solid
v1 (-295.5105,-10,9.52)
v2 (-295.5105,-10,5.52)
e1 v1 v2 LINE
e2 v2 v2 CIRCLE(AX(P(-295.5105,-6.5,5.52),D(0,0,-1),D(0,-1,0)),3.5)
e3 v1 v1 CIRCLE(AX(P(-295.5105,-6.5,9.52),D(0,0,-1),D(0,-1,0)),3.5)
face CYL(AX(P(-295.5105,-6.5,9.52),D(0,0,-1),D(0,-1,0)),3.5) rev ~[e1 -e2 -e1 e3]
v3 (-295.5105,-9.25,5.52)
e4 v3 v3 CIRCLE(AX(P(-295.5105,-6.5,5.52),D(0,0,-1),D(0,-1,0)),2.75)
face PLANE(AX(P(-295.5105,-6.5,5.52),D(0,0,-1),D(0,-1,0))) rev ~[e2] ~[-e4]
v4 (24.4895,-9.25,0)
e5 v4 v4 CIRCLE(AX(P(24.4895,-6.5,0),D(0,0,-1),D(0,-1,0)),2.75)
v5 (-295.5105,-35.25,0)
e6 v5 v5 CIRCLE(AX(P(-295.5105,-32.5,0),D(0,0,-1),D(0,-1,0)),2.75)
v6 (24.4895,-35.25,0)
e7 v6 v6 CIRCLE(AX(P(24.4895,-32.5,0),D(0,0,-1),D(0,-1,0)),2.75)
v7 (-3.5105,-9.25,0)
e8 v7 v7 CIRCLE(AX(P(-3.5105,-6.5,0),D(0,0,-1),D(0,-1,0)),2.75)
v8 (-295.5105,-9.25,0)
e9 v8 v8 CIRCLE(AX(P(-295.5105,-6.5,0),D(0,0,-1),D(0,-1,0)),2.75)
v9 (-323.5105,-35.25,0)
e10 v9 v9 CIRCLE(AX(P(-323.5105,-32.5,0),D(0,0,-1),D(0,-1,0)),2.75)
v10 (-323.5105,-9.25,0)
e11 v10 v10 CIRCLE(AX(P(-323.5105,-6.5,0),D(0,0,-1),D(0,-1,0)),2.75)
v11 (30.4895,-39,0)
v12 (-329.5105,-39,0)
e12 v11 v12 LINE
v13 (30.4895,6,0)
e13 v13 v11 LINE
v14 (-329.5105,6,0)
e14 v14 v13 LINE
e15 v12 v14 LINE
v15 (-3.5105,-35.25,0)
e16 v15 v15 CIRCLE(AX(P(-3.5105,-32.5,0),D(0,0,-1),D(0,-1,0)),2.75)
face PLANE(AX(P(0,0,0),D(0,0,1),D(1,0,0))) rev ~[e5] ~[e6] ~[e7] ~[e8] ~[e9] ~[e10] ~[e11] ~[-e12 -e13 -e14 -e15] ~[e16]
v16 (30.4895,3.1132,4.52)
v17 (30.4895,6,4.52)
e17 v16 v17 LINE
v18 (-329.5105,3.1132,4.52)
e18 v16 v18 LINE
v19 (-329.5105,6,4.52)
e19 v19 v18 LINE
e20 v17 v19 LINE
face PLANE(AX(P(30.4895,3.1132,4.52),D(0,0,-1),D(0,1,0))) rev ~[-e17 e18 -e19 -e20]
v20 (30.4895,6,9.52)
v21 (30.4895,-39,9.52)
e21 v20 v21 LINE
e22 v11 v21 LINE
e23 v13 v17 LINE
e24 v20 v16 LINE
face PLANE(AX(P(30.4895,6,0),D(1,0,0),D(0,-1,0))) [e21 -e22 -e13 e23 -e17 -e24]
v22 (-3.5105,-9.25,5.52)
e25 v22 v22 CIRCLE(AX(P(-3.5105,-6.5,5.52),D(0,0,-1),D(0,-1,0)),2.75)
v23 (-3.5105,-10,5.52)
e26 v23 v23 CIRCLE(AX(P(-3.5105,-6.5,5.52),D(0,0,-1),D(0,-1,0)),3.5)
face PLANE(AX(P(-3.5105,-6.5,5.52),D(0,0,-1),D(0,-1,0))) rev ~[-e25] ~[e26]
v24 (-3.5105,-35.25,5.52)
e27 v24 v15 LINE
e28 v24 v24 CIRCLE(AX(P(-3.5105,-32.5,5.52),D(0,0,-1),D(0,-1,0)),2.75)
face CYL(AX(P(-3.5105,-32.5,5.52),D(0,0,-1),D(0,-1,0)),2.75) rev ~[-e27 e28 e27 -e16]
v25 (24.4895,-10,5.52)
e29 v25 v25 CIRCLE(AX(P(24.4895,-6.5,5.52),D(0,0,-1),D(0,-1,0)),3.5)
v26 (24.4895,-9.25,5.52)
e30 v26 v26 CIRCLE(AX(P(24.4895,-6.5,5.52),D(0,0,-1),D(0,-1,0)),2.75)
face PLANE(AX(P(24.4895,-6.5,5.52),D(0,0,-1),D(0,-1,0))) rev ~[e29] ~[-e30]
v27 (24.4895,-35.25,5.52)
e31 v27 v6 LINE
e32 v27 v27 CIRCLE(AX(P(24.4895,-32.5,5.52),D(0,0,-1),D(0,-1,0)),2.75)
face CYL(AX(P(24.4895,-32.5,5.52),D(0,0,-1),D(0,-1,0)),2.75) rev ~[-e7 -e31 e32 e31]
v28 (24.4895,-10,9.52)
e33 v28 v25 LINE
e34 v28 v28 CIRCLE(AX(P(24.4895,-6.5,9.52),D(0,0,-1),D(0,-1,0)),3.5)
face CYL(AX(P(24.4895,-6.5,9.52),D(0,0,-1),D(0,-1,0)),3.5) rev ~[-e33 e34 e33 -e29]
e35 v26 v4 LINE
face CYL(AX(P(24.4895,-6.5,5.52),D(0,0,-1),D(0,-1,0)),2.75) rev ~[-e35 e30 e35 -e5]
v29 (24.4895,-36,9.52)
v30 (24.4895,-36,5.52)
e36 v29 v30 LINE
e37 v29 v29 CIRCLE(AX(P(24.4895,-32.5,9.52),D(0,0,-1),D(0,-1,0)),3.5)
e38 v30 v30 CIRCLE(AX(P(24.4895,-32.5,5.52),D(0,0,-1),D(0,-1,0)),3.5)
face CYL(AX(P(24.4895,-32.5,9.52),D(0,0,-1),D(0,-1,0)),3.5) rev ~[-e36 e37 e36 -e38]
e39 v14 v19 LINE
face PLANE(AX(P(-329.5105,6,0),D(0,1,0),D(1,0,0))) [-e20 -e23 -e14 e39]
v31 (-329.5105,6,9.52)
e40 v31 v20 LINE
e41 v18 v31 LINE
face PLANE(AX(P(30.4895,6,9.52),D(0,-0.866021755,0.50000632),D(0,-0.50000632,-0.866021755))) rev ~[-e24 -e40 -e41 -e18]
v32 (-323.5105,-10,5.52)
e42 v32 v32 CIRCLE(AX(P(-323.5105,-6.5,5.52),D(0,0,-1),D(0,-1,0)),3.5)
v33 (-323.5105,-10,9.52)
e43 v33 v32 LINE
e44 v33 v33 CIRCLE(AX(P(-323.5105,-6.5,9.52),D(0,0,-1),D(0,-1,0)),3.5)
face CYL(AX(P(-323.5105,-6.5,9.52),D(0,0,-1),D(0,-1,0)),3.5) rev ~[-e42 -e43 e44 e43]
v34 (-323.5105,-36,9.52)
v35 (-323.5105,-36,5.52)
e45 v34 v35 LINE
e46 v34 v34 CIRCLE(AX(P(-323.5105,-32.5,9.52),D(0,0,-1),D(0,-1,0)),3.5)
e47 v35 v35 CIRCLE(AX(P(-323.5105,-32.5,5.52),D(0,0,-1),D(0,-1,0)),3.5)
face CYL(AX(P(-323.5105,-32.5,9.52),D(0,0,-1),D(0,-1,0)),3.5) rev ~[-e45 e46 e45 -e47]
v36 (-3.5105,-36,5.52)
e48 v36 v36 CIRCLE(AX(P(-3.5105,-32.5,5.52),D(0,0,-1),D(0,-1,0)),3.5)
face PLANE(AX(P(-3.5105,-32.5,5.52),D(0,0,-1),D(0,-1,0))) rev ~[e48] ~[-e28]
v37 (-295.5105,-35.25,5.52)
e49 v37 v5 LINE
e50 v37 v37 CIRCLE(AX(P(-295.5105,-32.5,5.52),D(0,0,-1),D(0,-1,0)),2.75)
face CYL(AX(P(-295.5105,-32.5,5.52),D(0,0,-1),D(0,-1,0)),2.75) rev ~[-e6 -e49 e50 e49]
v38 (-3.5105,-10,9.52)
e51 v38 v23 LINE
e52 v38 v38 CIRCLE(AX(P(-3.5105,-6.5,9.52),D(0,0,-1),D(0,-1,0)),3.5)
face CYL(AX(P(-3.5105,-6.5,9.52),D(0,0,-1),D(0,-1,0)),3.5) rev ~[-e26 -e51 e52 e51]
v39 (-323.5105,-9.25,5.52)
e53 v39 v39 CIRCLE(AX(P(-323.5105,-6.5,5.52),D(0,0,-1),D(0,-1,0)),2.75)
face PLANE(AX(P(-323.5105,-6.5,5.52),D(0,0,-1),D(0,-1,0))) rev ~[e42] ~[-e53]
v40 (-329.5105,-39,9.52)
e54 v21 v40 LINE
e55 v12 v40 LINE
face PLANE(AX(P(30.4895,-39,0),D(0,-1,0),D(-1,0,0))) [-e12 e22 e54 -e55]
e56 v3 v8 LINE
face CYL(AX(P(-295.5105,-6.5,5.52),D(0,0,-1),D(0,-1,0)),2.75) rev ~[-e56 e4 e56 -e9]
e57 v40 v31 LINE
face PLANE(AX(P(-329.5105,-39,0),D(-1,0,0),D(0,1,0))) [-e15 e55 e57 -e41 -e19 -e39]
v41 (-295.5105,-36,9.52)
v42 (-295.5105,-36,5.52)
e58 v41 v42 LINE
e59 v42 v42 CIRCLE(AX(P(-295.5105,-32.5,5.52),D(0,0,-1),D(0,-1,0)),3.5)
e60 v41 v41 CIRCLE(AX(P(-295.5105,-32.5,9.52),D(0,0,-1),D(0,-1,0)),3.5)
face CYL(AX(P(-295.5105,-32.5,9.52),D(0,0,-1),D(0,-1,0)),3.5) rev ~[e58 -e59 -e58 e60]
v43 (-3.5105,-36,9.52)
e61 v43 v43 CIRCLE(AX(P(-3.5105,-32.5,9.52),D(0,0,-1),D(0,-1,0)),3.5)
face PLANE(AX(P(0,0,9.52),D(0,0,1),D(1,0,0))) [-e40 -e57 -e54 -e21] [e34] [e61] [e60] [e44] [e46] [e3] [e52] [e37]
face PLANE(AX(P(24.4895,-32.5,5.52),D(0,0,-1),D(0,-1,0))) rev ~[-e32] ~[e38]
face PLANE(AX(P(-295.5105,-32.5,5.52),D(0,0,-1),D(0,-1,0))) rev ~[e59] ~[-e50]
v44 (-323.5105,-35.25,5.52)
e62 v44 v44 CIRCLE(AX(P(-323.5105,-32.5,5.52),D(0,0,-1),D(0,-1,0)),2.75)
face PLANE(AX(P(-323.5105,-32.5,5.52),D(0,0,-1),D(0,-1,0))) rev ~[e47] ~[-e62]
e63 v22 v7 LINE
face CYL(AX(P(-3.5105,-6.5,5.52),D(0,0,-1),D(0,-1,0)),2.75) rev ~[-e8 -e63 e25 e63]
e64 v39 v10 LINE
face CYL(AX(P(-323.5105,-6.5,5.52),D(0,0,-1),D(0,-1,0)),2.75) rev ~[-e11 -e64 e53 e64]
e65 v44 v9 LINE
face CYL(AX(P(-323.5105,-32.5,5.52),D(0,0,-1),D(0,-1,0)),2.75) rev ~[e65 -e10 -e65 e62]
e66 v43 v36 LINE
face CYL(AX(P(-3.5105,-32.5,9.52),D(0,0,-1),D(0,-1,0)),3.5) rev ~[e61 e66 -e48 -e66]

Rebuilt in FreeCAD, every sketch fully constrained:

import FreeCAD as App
import Part
import Sketcher

V = App.Vector
Q = App.Units.Quantity

doc = App.newDocument("Part")
body = doc.addObject("PartDesign::Body", "Body")

sketch1 = body.newObject("Sketcher::SketchObject", "Sketch")
sketch1.AttachmentSupport = (doc.getObject("XY_Plane"), [""])
sketch1.MapMode = "FlatFace"
sketch1.addGeometry(Part.LineSegment(V(-329.5105, -39, 0), V(30.4895, -39, 0)), False)
sketch1.addGeometry(Part.LineSegment(V(30.4895, -39, 0), V(30.4895, 6, 0)), False)
sketch1.addGeometry(Part.LineSegment(V(30.4895, 6, 0), V(-329.5105, 6, 0)), False)
sketch1.addGeometry(Part.LineSegment(V(-329.5105, 6, 0), V(-329.5105, -39, 0)), False)
sketch1.addConstraint(Sketcher.Constraint("Coincident", 0, 2, 1, 1))
sketch1.addConstraint(Sketcher.Constraint("Coincident", 1, 2, 2, 1))
sketch1.addConstraint(Sketcher.Constraint("Coincident", 2, 2, 3, 1))
sketch1.addConstraint(Sketcher.Constraint("Coincident", 3, 2, 0, 1))
sketch1.addConstraint(Sketcher.Constraint("Horizontal", 0))
sketch1.addConstraint(Sketcher.Constraint("Vertical", 1))
sketch1.addConstraint(Sketcher.Constraint("Horizontal", 2))
sketch1.addConstraint(Sketcher.Constraint("Vertical", 3))
sketch1.addConstraint(Sketcher.Constraint("DistanceY", 1, 1, 1, 2, 45.0))
sketch1.addConstraint(Sketcher.Constraint("DistanceX", 0, 1, 0, 2, 360.0))
sketch1.addConstraint(Sketcher.Constraint("DistanceY", 0, 2, -1, 1, 39.0))
sketch1.addConstraint(Sketcher.Constraint("DistanceX", -1, 1, 0, 2, 30.4895))
pad1 = body.newObject("PartDesign::Pad", "Pad")
pad1.Profile = sketch1
pad1.Length = 9.52

sketch2 = body.newObject("Sketcher::SketchObject", "Sketch001")
sketch2.AttachmentSupport = (doc.getObject("XY_Plane"), [""])
sketch2.MapMode = "FlatFace"
sketch2.AttachmentOffset = App.Placement(V(0, 0, 9.52), App.Rotation())
sketch2.addGeometry(Part.Circle(V(24.4895, -32.5, 0), V(0, 0, 1), 2.75), False)
sketch2.addGeometry(Part.Circle(V(-3.5105, -32.5, 0), V(0, 0, 1), 2.75), False)
sketch2.addGeometry(Part.Circle(V(-3.5105, -6.5, 0), V(0, 0, 1), 2.75), False)
sketch2.addGeometry(Part.Circle(V(24.4895, -6.5, 0), V(0, 0, 1), 2.75), False)
sketch2.addGeometry(Part.Circle(V(-323.5105, -32.5, 0), V(0, 0, 1), 2.75), False)
sketch2.addGeometry(Part.Circle(V(-295.5105, -32.5, 0), V(0, 0, 1), 2.75), False)
sketch2.addGeometry(Part.Circle(V(-295.5105, -6.5, 0), V(0, 0, 1), 2.75), False)
sketch2.addGeometry(Part.Circle(V(-323.5105, -6.5, 0), V(0, 0, 1), 2.75), False)
sketch2.addConstraint(Sketcher.Constraint("Equal", 0, 1))
sketch2.addConstraint(Sketcher.Constraint("Equal", 1, 2))
sketch2.addConstraint(Sketcher.Constraint("Equal", 2, 3))
sketch2.addConstraint(Sketcher.Constraint("Equal", 3, 4))
sketch2.addConstraint(Sketcher.Constraint("Equal", 4, 5))
sketch2.addConstraint(Sketcher.Constraint("Equal", 5, 6))
sketch2.addConstraint(Sketcher.Constraint("Equal", 6, 7))
sketch2.addConstraint(Sketcher.Constraint("Horizontal", 0, 3, 1, 3))
sketch2.addConstraint(Sketcher.Constraint("Horizontal", 2, 3, 3, 3))
sketch2.addConstraint(Sketcher.Constraint("Horizontal", 1, 3, 4, 3))
sketch2.addConstraint(Sketcher.Constraint("Horizontal", 4, 3, 5, 3))
sketch2.addConstraint(Sketcher.Constraint("Horizontal", 3, 3, 6, 3))
sketch2.addConstraint(Sketcher.Constraint("Horizontal", 6, 3, 7, 3))
sketch2.addConstraint(Sketcher.Constraint("Vertical", 1, 3, 2, 3))
sketch2.addConstraint(Sketcher.Constraint("Vertical", 0, 3, 3, 3))
sketch2.addConstraint(Sketcher.Constraint("Vertical", 5, 3, 6, 3))
sketch2.addConstraint(Sketcher.Constraint("Vertical", 4, 3, 7, 3))
sketch2.addConstraint(Sketcher.Constraint("Diameter", 0, 5.5))
sketch2.addConstraint(Sketcher.Constraint("DistanceX", 1, 3, 0, 3, 28.0))
sketch2.addConstraint(Sketcher.Constraint("DistanceY", 1, 3, 2, 3, 26.0))
sketch2.addConstraint(Sketcher.Constraint("DistanceX", 4, 3, 1, 3, 320.0))
sketch2.addConstraint(Sketcher.Constraint("DistanceX", 4, 3, 5, 3, 28.0))
sketch2.addConstraint(Sketcher.Constraint("DistanceY", 0, 3, -1, 1, 32.5))
sketch2.addConstraint(Sketcher.Constraint("DistanceX", -1, 1, 0, 3, 24.4895))
doc.recompute()
hole = body.newObject("PartDesign::Hole", "Hole")
hole.Profile = sketch2
hole.ThreadType = "None"
hole.Diameter = 5.5
hole.DepthType = "ThroughAll"
hole.HoleCutType = "Counterbore"
hole.HoleCutDiameter = 7
hole.HoleCutDepth = 4

sketch3 = body.newObject("Sketcher::SketchObject", "Sketch002")
sketch3.AttachmentSupport = (doc.getObject("YZ_Plane"), [""])
sketch3.MapMode = "FlatFace"
sketch3.AttachmentOffset = App.Placement(V(0, 0, 30.4895), App.Rotation())
sketch3.addGeometry(Part.LineSegment(V(3.1132, 4.52, 0), V(6, 4.52, 0)), False)
sketch3.addGeometry(Part.LineSegment(V(6, 4.52, 0), V(6, 9.52, 0)), False)
sketch3.addGeometry(Part.LineSegment(V(6, 9.52, 0), V(3.1132, 4.52, 0)), False)
sketch3.addConstraint(Sketcher.Constraint("Coincident", 0, 2, 1, 1))
sketch3.addConstraint(Sketcher.Constraint("Coincident", 1, 2, 2, 1))
sketch3.addConstraint(Sketcher.Constraint("Coincident", 2, 2, 0, 1))
sketch3.addConstraint(Sketcher.Constraint("Horizontal", 0))
sketch3.addConstraint(Sketcher.Constraint("Vertical", 1))
sketch3.addConstraint(Sketcher.Constraint("DistanceY", 1, 1, 1, 2, 5.0))
sketch3.addConstraint(Sketcher.Constraint("Angle", 2, Q("-120.0004 deg")))
sketch3.addConstraint(Sketcher.Constraint("DistanceX", -1, 1, 0, 2, 6.0))
sketch3.addConstraint(Sketcher.Constraint("DistanceY", -1, 1, 0, 2, 4.52))
pocket1 = body.newObject("PartDesign::Pocket", "Pocket")
pocket1.Profile = sketch3
pocket1.Type = "ThroughAll"

doc.recompute()
